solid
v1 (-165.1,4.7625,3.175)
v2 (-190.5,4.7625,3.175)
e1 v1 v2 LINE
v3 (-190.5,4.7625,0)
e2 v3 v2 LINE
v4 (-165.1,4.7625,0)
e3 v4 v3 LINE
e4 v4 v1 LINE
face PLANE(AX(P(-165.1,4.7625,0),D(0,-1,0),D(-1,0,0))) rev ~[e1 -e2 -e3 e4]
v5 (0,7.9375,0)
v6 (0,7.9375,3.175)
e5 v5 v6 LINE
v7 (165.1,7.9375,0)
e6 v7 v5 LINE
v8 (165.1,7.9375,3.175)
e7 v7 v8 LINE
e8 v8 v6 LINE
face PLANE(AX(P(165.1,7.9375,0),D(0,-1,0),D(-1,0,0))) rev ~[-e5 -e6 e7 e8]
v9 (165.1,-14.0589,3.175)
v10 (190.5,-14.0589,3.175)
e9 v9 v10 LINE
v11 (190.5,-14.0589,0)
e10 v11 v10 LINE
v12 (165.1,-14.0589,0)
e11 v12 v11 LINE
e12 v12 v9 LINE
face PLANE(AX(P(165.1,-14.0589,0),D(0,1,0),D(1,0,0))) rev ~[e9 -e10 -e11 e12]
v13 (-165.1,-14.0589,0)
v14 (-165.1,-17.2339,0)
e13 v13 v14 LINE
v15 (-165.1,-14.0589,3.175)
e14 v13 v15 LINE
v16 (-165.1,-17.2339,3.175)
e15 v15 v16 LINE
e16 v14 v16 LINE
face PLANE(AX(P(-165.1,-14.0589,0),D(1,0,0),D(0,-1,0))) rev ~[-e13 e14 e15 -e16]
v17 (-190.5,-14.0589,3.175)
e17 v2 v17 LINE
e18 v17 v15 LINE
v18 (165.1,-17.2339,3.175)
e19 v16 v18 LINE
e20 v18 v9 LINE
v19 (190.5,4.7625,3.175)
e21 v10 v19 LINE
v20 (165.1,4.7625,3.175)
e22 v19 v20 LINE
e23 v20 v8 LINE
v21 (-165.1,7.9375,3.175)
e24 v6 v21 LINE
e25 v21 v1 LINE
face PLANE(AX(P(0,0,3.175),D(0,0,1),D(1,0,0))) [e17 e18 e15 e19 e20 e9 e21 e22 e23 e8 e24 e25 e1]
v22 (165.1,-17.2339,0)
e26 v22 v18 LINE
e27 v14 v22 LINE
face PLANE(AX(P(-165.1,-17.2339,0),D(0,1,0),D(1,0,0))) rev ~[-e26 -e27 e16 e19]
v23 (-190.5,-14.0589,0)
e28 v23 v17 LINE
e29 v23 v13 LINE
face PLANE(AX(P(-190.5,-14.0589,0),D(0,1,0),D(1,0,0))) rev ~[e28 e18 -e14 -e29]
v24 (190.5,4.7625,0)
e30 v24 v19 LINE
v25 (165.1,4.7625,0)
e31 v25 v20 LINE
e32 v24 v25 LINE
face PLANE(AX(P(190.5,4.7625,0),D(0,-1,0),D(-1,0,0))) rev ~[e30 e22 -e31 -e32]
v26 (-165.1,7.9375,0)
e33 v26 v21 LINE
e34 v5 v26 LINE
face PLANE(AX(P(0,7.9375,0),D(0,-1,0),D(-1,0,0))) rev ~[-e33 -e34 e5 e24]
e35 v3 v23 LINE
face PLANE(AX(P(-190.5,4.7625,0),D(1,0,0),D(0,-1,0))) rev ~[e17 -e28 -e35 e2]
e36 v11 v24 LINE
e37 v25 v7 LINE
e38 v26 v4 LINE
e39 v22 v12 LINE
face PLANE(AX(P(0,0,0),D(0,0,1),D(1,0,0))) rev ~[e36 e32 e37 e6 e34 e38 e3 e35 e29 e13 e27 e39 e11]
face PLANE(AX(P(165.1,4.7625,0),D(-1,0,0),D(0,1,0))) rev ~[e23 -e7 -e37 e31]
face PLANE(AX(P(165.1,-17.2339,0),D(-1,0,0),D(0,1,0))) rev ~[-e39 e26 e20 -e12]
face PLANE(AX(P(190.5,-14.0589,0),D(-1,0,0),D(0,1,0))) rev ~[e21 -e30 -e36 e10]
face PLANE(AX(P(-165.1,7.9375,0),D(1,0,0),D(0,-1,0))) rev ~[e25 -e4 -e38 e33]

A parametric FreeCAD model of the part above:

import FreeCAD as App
import Part
import Sketcher
Q = App.Units.Quantity

doc = App.newDocument("Part")
params = doc.addObject("Spreadsheet::Sheet", "Params")
for row, (alias, value) in enumerate([
    ("sketch1_width", "13 in"),
    ("sketch1_width2", "1 in"),
    ("sketch1_height", "0.125 in"),
    ("sketch1_height2", "0.741 in"),
    ("pad1_length", "0.125 in"),
], start=1):
    params.set(f"A{row}", alias)
    params.set(f"B{row}", "=" + value)
    params.setAlias(f"B{row}", alias)

body = doc.addObject("PartDesign::Body", "Body")

sketch1 = body.newObject("Sketcher::SketchObject", "Sketch")
sketch1.AttachmentSupport = (doc.getObject("XY_Plane"), [""])
sketch1.MapMode = "FlatFace"
sketch1.addGeometry([
    Part.LineSegment(App.Vector(165.1, 7.9, 0), App.Vector(-165.1, 7.9, 0)),
    Part.LineSegment(App.Vector(-165.1, 7.9, 0), App.Vector(-165.1, 4.8, 0)),
    Part.LineSegment(App.Vector(-165.1, 4.8, 0), App.Vector(-190.5, 4.8, 0)),
    Part.LineSegment(App.Vector(-190.5, 4.8, 0), App.Vector(-190.5, -14.1, 0)),
    Part.LineSegment(App.Vector(-190.5, -14.1, 0), App.Vector(-165.1, -14.1, 0)),
    Part.LineSegment(App.Vector(-165.1, -14.1, 0), App.Vector(-165.1, -17.2, 0)),
    Part.LineSegment(App.Vector(-165.1, -17.2, 0), App.Vector(165.1, -17.2, 0)),
    Part.LineSegment(App.Vector(165.1, -17.2, 0), App.Vector(165.1, -14.1, 0)),
    Part.LineSegment(App.Vector(165.1, -14.1, 0), App.Vector(190.5, -14.1, 0)),
    Part.LineSegment(App.Vector(190.5, -14.1, 0), App.Vector(190.5, 4.8, 0)),
    Part.LineSegment(App.Vector(190.5, 4.8, 0), App.Vector(165.1, 4.8, 0)),
    Part.LineSegment(App.Vector(165.1, 4.8, 0), App.Vector(165.1, 7.9, 0)),
], False)
sketch1.addConstraint([
    Sketcher.Constraint("Coincident", 0, 2, 1, 1),
    Sketcher.Constraint("Coincident", 1, 2, 2, 1),
    Sketcher.Constraint("Coincident", 2, 2, 3, 1),
    Sketcher.Constraint("Coincident", 3, 2, 4, 1),
    Sketcher.Constraint("Coincident", 4, 2, 5, 1),
    Sketcher.Constraint("Coincident", 5, 2, 6, 1),
    Sketcher.Constraint("Coincident", 6, 2, 7, 1),
    Sketcher.Constraint("Coincident", 7, 2, 8, 1),
    Sketcher.Constraint("Coincident", 8, 2, 9, 1),
    Sketcher.Constraint("Coincident", 9, 2, 10, 1),
    Sketcher.Constraint("Coincident", 10, 2, 11, 1),
    Sketcher.Constraint("Coincident", 11, 2, 0, 1),
    Sketcher.Constraint("Horizontal", 0),
    Sketcher.Constraint("Vertical", 1),
    Sketcher.Constraint("Horizontal", 2),
    Sketcher.Constraint("Vertical", 3),
    Sketcher.Constraint("Horizontal", 4),
    Sketcher.Constraint("Vertical", 5),
    Sketcher.Constraint("Horizontal", 6),
    Sketcher.Constraint("Vertical", 7),
    Sketcher.Constraint("Horizontal", 8),
    Sketcher.Constraint("Vertical", 9),
    Sketcher.Constraint("Horizontal", 10),
    Sketcher.Constraint("Vertical", 11),
    Sketcher.Constraint("Symmetric", 4, 2, 7, 2, -2),
    Sketcher.Constraint("Symmetric", 2, 2, 9, 2, -2),
    Sketcher.Constraint("Vertical", 1, 2, 4, 2),
    Sketcher.Constraint("Vertical", 7, 2, 10, 2),
    Sketcher.Constraint("Equal", 1, 5),
    Sketcher.Constraint("DistanceX", 0, 2, 0, 1, Q("13 in")),
    Sketcher.Constraint("DistanceX", 2, 2, 2, 1, Q("1 in")),
    Sketcher.Constraint("DistanceY", 1, 2, 1, 1, Q("0.125 in")),
    Sketcher.Constraint("DistanceY", 3, 2, 3, 1, Q("0.741 in")),
    Sketcher.Constraint("DistanceY", -1, 1, 0, 2, Q("0.3125 in")),
])
sketch1.setExpression("Constraints[29]", "Params.sketch1_width")
sketch1.setExpression("Constraints[30]", "Params.sketch1_width2")
sketch1.setExpression("Constraints[31]", "Params.sketch1_height")
sketch1.setExpression("Constraints[32]", "Params.sketch1_height2")
pad1 = body.newObject("PartDesign::Pad", "Pad")
pad1.Profile = sketch1
pad1.setExpression("Length", "Params.pad1_length")

doc.recompute()
